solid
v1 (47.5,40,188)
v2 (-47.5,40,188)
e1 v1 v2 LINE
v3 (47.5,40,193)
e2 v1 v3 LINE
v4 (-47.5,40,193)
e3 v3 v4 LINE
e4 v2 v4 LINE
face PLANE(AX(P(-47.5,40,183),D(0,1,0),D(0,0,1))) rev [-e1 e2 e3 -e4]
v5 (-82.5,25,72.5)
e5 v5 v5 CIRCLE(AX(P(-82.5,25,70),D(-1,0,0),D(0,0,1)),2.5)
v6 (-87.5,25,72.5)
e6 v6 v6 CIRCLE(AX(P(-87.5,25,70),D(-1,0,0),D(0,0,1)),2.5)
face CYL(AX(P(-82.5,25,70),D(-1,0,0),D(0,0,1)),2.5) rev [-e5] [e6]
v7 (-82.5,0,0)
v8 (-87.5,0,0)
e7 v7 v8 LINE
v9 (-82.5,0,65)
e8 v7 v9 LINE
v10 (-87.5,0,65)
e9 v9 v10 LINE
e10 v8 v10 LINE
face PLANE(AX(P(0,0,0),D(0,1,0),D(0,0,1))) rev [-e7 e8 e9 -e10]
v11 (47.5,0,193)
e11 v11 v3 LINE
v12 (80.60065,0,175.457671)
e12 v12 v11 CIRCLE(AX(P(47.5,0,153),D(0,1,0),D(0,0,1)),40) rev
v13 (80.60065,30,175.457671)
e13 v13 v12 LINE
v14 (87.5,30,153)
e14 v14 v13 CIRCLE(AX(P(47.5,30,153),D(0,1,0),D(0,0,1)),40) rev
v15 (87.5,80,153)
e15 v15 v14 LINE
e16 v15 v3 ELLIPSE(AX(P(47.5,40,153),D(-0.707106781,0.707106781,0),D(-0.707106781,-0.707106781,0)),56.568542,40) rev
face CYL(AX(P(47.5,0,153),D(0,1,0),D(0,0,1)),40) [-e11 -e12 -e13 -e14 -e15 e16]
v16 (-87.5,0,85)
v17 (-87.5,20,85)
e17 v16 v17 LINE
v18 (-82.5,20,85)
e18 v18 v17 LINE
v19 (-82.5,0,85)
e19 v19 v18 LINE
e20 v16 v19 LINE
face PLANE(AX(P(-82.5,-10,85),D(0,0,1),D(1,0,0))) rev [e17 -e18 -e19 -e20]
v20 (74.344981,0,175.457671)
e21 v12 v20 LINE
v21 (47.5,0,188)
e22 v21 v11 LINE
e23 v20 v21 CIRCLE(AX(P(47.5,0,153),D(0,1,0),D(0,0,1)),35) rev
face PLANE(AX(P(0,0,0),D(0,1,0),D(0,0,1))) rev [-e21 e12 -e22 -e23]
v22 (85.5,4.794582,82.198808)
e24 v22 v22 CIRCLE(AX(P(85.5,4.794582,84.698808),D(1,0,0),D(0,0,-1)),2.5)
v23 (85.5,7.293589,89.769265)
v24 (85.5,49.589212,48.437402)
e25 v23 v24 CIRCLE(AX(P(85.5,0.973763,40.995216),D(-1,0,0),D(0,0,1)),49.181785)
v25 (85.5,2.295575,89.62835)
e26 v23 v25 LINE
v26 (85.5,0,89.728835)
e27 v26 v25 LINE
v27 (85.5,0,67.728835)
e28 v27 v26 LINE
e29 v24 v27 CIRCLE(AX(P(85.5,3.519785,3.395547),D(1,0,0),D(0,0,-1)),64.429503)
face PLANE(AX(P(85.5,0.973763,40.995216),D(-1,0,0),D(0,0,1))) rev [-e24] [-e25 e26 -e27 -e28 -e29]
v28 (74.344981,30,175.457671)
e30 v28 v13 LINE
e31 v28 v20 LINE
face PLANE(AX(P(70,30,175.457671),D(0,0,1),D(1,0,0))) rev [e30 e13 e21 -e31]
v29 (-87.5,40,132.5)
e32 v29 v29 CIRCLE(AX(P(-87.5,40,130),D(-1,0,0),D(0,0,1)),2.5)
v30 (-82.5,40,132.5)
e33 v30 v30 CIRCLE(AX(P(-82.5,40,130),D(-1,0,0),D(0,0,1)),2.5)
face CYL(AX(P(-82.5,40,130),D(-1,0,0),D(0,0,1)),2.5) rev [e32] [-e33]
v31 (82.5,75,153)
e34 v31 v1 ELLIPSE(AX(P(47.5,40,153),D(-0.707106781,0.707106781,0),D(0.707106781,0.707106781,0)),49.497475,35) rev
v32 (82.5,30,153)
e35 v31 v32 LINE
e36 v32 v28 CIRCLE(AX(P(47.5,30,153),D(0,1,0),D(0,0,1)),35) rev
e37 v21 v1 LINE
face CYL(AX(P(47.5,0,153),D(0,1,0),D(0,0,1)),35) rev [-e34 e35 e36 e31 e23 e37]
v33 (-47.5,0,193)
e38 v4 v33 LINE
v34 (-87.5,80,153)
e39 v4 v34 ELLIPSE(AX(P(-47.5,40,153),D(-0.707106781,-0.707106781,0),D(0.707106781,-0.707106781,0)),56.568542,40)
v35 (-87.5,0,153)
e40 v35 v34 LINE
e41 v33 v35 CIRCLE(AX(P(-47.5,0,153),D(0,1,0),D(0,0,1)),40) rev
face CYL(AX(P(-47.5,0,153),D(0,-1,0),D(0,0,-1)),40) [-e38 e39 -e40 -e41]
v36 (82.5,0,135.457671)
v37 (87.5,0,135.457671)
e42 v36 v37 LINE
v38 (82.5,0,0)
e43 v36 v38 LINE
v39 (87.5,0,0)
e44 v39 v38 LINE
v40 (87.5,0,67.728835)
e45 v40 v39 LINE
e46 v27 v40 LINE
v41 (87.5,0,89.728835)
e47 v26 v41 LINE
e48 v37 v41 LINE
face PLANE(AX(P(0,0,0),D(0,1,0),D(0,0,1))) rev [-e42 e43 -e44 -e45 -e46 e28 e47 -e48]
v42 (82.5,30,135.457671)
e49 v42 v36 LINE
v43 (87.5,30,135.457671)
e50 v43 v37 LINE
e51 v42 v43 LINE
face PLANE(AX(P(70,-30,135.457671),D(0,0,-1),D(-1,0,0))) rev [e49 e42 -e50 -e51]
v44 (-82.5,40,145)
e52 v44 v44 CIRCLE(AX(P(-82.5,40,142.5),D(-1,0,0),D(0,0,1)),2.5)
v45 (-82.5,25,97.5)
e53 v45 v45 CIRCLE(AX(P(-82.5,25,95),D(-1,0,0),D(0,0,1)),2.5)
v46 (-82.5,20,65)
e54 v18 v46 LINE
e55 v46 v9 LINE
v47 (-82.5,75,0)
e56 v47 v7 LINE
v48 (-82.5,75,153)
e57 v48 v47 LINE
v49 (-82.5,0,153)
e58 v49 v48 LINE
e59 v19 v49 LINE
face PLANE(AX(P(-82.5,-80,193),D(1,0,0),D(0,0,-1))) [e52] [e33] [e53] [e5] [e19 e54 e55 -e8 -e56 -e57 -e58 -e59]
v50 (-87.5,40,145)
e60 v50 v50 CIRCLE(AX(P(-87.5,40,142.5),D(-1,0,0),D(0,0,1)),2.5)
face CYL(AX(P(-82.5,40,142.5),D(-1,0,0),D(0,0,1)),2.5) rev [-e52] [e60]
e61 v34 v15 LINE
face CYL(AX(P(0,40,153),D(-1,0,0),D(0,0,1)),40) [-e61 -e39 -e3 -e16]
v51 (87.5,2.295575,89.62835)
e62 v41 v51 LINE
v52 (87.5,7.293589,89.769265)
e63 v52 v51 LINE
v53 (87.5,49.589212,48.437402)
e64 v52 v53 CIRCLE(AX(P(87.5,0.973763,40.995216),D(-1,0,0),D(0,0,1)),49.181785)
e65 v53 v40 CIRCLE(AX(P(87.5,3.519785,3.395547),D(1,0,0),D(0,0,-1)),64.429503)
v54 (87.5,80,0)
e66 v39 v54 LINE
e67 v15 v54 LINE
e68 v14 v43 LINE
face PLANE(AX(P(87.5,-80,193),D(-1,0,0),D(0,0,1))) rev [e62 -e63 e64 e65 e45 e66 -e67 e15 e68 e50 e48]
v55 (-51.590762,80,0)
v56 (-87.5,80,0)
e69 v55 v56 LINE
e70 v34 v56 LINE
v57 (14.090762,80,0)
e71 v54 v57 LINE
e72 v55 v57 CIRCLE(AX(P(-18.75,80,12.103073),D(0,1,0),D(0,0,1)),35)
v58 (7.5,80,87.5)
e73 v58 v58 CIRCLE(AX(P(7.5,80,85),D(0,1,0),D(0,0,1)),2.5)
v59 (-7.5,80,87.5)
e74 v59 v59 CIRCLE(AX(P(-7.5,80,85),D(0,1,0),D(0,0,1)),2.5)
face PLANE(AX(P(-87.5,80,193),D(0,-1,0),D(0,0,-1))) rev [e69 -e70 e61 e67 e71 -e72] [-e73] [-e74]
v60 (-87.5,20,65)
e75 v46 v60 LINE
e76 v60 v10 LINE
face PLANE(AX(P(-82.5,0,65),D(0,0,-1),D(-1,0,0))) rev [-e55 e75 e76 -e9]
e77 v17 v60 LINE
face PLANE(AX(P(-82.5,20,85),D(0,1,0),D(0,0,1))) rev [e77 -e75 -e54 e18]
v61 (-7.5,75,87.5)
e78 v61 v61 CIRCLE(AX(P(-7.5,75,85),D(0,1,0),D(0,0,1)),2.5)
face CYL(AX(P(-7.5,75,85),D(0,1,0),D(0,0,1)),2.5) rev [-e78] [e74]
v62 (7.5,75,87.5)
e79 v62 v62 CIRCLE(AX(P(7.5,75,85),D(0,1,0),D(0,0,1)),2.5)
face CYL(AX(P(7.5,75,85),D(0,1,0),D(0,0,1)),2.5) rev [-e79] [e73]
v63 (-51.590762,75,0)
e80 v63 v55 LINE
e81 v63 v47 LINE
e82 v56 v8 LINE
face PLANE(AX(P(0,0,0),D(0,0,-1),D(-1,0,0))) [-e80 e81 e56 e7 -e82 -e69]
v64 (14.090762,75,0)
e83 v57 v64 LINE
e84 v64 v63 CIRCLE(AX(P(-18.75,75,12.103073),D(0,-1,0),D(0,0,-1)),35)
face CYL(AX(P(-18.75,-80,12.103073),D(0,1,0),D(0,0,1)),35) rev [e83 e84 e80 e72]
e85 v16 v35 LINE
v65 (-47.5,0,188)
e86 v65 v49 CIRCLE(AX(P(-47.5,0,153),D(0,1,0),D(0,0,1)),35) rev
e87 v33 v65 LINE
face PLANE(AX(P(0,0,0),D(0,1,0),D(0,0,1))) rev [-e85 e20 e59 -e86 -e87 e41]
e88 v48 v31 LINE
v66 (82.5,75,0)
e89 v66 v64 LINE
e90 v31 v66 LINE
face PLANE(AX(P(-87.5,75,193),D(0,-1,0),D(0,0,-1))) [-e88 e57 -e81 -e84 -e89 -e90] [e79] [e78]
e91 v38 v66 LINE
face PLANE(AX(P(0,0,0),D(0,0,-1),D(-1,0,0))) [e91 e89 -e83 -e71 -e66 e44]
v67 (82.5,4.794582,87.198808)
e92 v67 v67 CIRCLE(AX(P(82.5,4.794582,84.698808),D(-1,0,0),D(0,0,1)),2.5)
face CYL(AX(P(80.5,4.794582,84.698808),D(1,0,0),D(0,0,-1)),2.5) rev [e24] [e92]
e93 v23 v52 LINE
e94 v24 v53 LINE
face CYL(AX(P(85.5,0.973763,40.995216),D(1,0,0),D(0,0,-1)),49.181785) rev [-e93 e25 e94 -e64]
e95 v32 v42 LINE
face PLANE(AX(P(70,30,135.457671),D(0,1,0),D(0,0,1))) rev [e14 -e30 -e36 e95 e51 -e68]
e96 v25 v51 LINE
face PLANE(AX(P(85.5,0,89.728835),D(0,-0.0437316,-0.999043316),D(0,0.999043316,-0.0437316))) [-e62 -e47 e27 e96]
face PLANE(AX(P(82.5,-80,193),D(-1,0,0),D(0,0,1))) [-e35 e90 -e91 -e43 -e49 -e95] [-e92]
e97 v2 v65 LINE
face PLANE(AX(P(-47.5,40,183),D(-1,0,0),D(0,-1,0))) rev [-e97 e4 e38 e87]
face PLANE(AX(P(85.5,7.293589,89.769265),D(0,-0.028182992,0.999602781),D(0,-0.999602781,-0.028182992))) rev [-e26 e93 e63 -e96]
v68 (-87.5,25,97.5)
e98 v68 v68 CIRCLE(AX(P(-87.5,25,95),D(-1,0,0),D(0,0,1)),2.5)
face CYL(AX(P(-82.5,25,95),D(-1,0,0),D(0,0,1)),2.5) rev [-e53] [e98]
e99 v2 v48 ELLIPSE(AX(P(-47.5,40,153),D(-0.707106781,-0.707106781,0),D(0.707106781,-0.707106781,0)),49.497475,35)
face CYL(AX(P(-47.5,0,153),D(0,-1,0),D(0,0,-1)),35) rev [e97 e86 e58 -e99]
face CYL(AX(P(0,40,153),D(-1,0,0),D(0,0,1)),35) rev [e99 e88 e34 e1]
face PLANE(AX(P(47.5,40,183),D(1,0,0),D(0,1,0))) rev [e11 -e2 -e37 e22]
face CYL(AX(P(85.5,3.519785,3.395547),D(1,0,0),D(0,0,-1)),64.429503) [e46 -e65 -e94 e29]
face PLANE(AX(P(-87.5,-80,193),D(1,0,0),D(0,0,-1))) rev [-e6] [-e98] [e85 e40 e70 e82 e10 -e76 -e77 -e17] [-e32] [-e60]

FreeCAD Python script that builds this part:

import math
import FreeCAD as App
import Part
import Sketcher
from FreeCAD import Vector


def edges_at(feature, points):
    """Names of the edges that pass closest to the given points."""
    edges = feature.Shape.Edges
    near = lambda p: min(range(len(edges)), key=lambda i: edges[i].distToShape(Part.Vertex(*p))[0])
    return sorted({f"Edge{near(p) + 1}" for p in points})


def faces_at(feature, points):
    """Names of the faces that lie closest to the given points."""
    faces = feature.Shape.Faces
    near = lambda p: min(range(len(faces)), key=lambda i: faces[i].distToShape(Part.Vertex(*p))[0])
    return sorted({f"Face{near(p) + 1}" for p in points})

doc = App.newDocument("Part")
body = doc.addObject("PartDesign::Body", "Body")

# Sketch on XY plane
sketch1 = body.newObject("Sketcher::SketchObject", "Sketch")
sketch1.AttachmentSupport = (doc.getObject("XY_Plane"), [""])
sketch1.MapMode = "FlatFace"
sketch1.addGeometry([
    Part.LineSegment(Vector(-87.5, 80, 0), Vector(-87.5, -80, 0)),
    Part.LineSegment(Vector(-87.5, -80, 0), Vector(87.5, -80, 0)),
    Part.LineSegment(Vector(87.5, -80, 0), Vector(87.5, 80, 0)),
    Part.LineSegment(Vector(87.5, 80, 0), Vector(-87.5, 80, 0)),
], False)
sketch1.addConstraint([
    Sketcher.Constraint("Coincident", 0, 2, 1, 1),
    Sketcher.Constraint("Coincident", 1, 2, 2, 1),
    Sketcher.Constraint("Coincident", 2, 2, 3, 1),
    Sketcher.Constraint("Coincident", 3, 2, 0, 1),
    Sketcher.Constraint("Vertical", 0),
    Sketcher.Constraint("Horizontal", 1),
    Sketcher.Constraint("Vertical", 2),
    Sketcher.Constraint("Horizontal", 3),
    Sketcher.Constraint("Symmetric", 0, 2, 2, 2, -1, 1),
    Sketcher.Constraint("DistanceX", 1, 1, 1, 2, 175.0),
    Sketcher.Constraint("DistanceY", 0, 2, 0, 1, 160.0),
])
pad1 = body.newObject("PartDesign::Pad", "Pad")
pad1.Profile = sketch1
pad1.Length = 193
doc.recompute()

fillet = body.newObject("PartDesign::Fillet", "Fillet")
fillet.Base = (pad1, edges_at(pad1, [
    (-87.5, 0, 193),
    (0, -80, 193),
    (87.5, 0, 193),
    (0, 80, 193),
]))
fillet.Radius = 40
doc.recompute()

thickness = body.newObject("PartDesign::Thickness", "Thickness")
thickness.Base = (fillet, faces_at(fillet, [(0, 0, 0)]))
thickness.Value = 5
thickness.Reversed = True
thickness.Join = "Arc"

# Sketch on XY plane
sketch2 = body.newObject("Sketcher::SketchObject", "Sketch001")
sketch2.AttachmentSupport = (doc.getObject("XY_Plane"), [""])
sketch2.MapMode = "FlatFace"
sketch2.AttachmentOffset = App.Placement(Vector(0, 0, 193), App.Rotation())
sketch2.addGeometry([
    Part.LineSegment(Vector(-47.5, 40, 0), Vector(-47.5, -40, 0)),
    Part.LineSegment(Vector(-47.5, -40, 0), Vector(47.5, -40, 0)),
    Part.LineSegment(Vector(47.5, -40, 0), Vector(47.5, 40, 0)),
    Part.LineSegment(Vector(47.5, 40, 0), Vector(-47.5, 40, 0)),
], False)
sketch2.addConstraint([
    Sketcher.Constraint("Coincident", 0, 2, 1, 1),
    Sketcher.Constraint("Coincident", 1, 2, 2, 1),
    Sketcher.Constraint("Coincident", 2, 2, 3, 1),
    Sketcher.Constraint("Coincident", 3, 2, 0, 1),
    Sketcher.Constraint("Vertical", 0),
    Sketcher.Constraint("Horizontal", 1),
    Sketcher.Constraint("Vertical", 2),
    Sketcher.Constraint("Horizontal", 3),
    Sketcher.Constraint("Symmetric", 0, 2, 2, 2, -1, 1),
    Sketcher.Constraint("DistanceX", 1, 1, 1, 2, 95.0),
    Sketcher.Constraint("DistanceY", 0, 2, 0, 1, 80.0),
])
pocket1 = body.newObject("PartDesign::Pocket", "Pocket")
pocket1.Profile = sketch2
pocket1.Length = 10

# Sketch on XZ plane
sketch3 = body.newObject("Sketcher::SketchObject", "Sketch002")
sketch3.AttachmentSupport = (doc.getObject("XZ_Plane"), [""])
sketch3.MapMode = "FlatFace"
sketch3.AttachmentOffset = App.Placement(Vector(0, 0, -80), App.Rotation())
sketch3.addGeometry(Part.Circle(Vector(-18.75, 12.103073, 0), Vector(0, 0, 1), 35), False)
sketch3.addConstraint([
    Sketcher.Constraint("Diameter", 0, 70.0),
    Sketcher.Constraint("DistanceX", 0, 3, -1, 1, 18.75),
    Sketcher.Constraint("DistanceY", -1, 1, 0, 3, 12.103073),
])
pocket2 = body.newObject("PartDesign::Pocket", "Pocket001")
pocket2.Profile = sketch3
pocket2.Length = 160
pocket2.Reversed = True

# Sketch on YZ plane
sketch4 = body.newObject("Sketcher::SketchObject", "Sketch003")
sketch4.AttachmentSupport = (doc.getObject("YZ_Plane"), [""])
sketch4.MapMode = "FlatFace"
sketch4.AttachmentOffset = App.Placement(Vector(0, 0, 90), App.Rotation())
sketch4.addGeometry([
    Part.LineSegment(Vector(30, 175.457671, 0), Vector(-30, 175.457671, 0)),
    Part.LineSegment(Vector(-30, 175.457671, 0), Vector(-30, 135.457671, 0)),
    Part.LineSegment(Vector(-30, 135.457671, 0), Vector(30, 135.457671, 0)),
    Part.LineSegment(Vector(30, 135.457671, 0), Vector(30, 175.457671, 0)),
], False)
sketch4.addConstraint([
    Sketcher.Constraint("Coincident", 0, 2, 1, 1),
    Sketcher.Constraint("Coincident", 1, 2, 2, 1),
    Sketcher.Constraint("Coincident", 2, 2, 3, 1),
    Sketcher.Constraint("Coincident", 3, 2, 0, 1),
    Sketcher.Constraint("Horizontal", 0),
    Sketcher.Constraint("Vertical", 1),
    Sketcher.Constraint("Horizontal", 2),
    Sketcher.Constraint("Vertical", 3),
    Sketcher.Constraint("DistanceX", 0, 2, 0, 1, 60.0),
    Sketcher.Constraint("DistanceY", 1, 2, 1, 1, 40.0),
    Sketcher.Constraint("DistanceX", 0, 2, -1, 1, 30.0),
    Sketcher.Constraint("DistanceY", -1, 1, 0, 2, 175.457671),
])
pocket3 = body.newObject("PartDesign::Pocket", "Pocket002")
pocket3.Profile = sketch4
pocket3.Length = 20

# Sketch on XZ plane
sketch5 = body.newObject("Sketcher::SketchObject", "Sketch004")
sketch5.AttachmentSupport = (doc.getObject("XZ_Plane"), [""])
sketch5.MapMode = "FlatFace"
sketch5.addGeometry([
    Part.LineSegment(Vector(-165, 200, 0), Vector(110, 200, 0)),
    Part.LineSegment(Vector(110, 200, 0), Vector(110, 0, 0)),
    Part.LineSegment(Vector(110, 0, 0), Vector(-165, 0, 0)),
    Part.LineSegment(Vector(-165, 0, 0), Vector(-165, 200, 0)),
], False)
sketch5.addConstraint([
    Sketcher.Constraint("Coincident", 0, 2, 1, 1),
    Sketcher.Constraint("Coincident", 1, 2, 2, 1),
    Sketcher.Constraint("Coincident", 2, 2, 3, 1),
    Sketcher.Constraint("Coincident", 3, 2, 0, 1),
    Sketcher.Constraint("Horizontal", 0),
    Sketcher.Constraint("Vertical", 1),
    Sketcher.Constraint("Horizontal", 2),
    Sketcher.Constraint("Vertical", 3),
    Sketcher.Constraint("PointOnObject", 1, 2, -1),
    Sketcher.Constraint("DistanceX", 0, 1, 0, 2, 275.0),
    Sketcher.Constraint("DistanceY", 1, 2, 1, 1, 200.0),
    Sketcher.Constraint("DistanceX", -1, 1, 0, 2, 110.0),
])
pocket4 = body.newObject("PartDesign::Pocket", "Pocket003")
pocket4.Profile = sketch5
pocket4.Length = 80
pocket4.Reversed = True

# Sketch on XZ plane
sketch6 = body.newObject("Sketcher::SketchObject", "Sketch005")
sketch6.AttachmentSupport = (doc.getObject("XZ_Plane"), [""])
sketch6.MapMode = "FlatFace"
sketch6.AttachmentOffset = App.Placement(Vector(0, 0, -80), App.Rotation())
sketch6.addGeometry([
    Part.Circle(Vector(7.5, 85, 0), Vector(0, 0, 1), 2.5),
    Part.Circle(Vector(-7.5, 85, 0), Vector(0, 0, 1), 2.5),
], False)
sketch6.addConstraint([
    Sketcher.Constraint("Equal", 0, 1),
    Sketcher.Constraint("Symmetric", 0, 3, 1, 3, -2),
    Sketcher.Constraint("Diameter", 0, 5.0),
    Sketcher.Constraint("DistanceY", -1, 1, 0, 3, 85.0),
    Sketcher.Constraint("DistanceX", 1, 3, 0, 3, 15.0),
])
pocket5 = body.newObject("PartDesign::Pocket", "Pocket004")
pocket5.Profile = sketch6
pocket5.Length = 5
pocket5.Reversed = True

# Sketch on YZ plane
sketch7 = body.newObject("Sketcher::SketchObject", "Sketch006")
sketch7.AttachmentSupport = (doc.getObject("YZ_Plane"), [""])
sketch7.MapMode = "FlatFace"
sketch7.AttachmentOffset = App.Placement(Vector(0, 0, -87.5), App.Rotation())
sketch7.addGeometry([
    Part.Circle(Vector(40, 130, 0), Vector(0, 0, 1), 2.5),  # 0
    Part.Circle(Vector(40, 142.5, 0), Vector(0, 0, 1), 2.5),  # 1
    Part.Circle(Vector(25, 70, 0), Vector(0, 0, 1), 2.5),  # 2
    Part.Circle(Vector(25, 95, 0), Vector(0, 0, 1), 2.5),  # 3
    Part.LineSegment(Vector(-10, 65, 0), Vector(-10, 85, 0)),  # 4
    Part.LineSegment(Vector(-10, 85, 0), Vector(20, 85, 0)),  # 5
    Part.LineSegment(Vector(20, 85, 0), Vector(20, 65, 0)),  # 6
    Part.LineSegment(Vector(20, 65, 0), Vector(-10, 65, 0)),  # 7
], False)
sketch7.addConstraint([
    Sketcher.Constraint("Coincident", 4, 2, 5, 1),
    Sketcher.Constraint("Coincident", 5, 2, 6, 1),
    Sketcher.Constraint("Coincident", 6, 2, 7, 1),
    Sketcher.Constraint("Coincident", 7, 2, 4, 1),
    Sketcher.Constraint("Vertical", 4),
    Sketcher.Constraint("Horizontal", 5),
    Sketcher.Constraint("Vertical", 6),
    Sketcher.Constraint("Horizontal", 7),
    Sketcher.Constraint("Equal", 0, 1),
    Sketcher.Constraint("Equal", 1, 2),
    Sketcher.Constraint("Equal", 2, 3),
    Sketcher.Constraint("Vertical", 0, 3, 1, 3),
    Sketcher.Constraint("Vertical", 2, 3, 3, 3),
    Sketcher.Constraint("Diameter", 0, 5.0),
    Sketcher.Constraint("DistanceX", 5, 1, 5, 2, 30.0),
    Sketcher.Constraint("DistanceY", 4, 1, 4, 2, 20.0),
    Sketcher.Constraint("DistanceX", -1, 1, 0, 3, 40.0),
    Sketcher.Constraint("DistanceY", -1, 1, 0, 3, 130.0),
    Sketcher.Constraint("DistanceX", -1, 1, 2, 3, 25.0),
    Sketcher.Constraint("DistanceY", -1, 1, 2, 3, 70.0),
    Sketcher.Constraint("DistanceY", -1, 1, 3, 3, 95.0),
    Sketcher.Constraint("DistanceX", 4, 2, -1, 1, 10.0),
    Sketcher.Constraint("DistanceY", -1, 1, 4, 2, 85.0),
    Sketcher.Constraint("DistanceY", -1, 1, 1, 3, 142.5),
])
pocket6 = body.newObject("PartDesign::Pocket", "Pocket005")
pocket6.Profile = sketch7
pocket6.Length = 5
pocket6.Reversed = True

# Sketch on YZ plane
sketch8 = body.newObject("Sketcher::SketchObject", "Sketch007")
sketch8.AttachmentSupport = (doc.getObject("YZ_Plane"), [""])
sketch8.MapMode = "FlatFace"
sketch8.AttachmentOffset = App.Placement(Vector(0, 0, 87.5), App.Rotation())
sketch8.addGeometry([
    Part.LineSegment(Vector(0, 89.728835, 0), Vector(0, 67.728835, 0)),  # 0
    Part.ArcOfCircle(Part.Circle(Vector(3.519785, 3.395547, 0), Vector(0, 0, 1), 64.429503), math.radians(44.353833), math.radians(93.131628)),  # 1
    Part.ArcOfCircle(Part.Circle(Vector(0.973763, 40.995216, 0), Vector(0, 0, 1), 49.181785), math.radians(8.703428), math.radians(82.617118)),  # 2
    Part.LineSegment(Vector(7.293589, 89.769265, 0), Vector(2.295575, 89.62835, 0)),  # 3
    Part.LineSegment(Vector(2.295575, 89.62835, 0), Vector(0, 89.728835, 0)),  # 4
], False)
sketch8.addConstraint([
    Sketcher.Constraint("Coincident", 0, 2, 1, 2),
    Sketcher.Constraint("Coincident", 1, 1, 2, 1),
    Sketcher.Constraint("Coincident", 2, 2, 3, 1),
    Sketcher.Constraint("Coincident", 3, 2, 4, 1),
    Sketcher.Constraint("Coincident", 4, 2, 0, 1),
    Sketcher.Constraint("Vertical", 0),
    Sketcher.Constraint("PointOnObject", 0, 2, -2),
    Sketcher.Constraint("DistanceY", 0, 2, 0, 1, 22.0),
    Sketcher.Constraint("Distance", 3, 5.0),
    Sketcher.Constraint("Radius", 1, 64.429503),
    Sketcher.Constraint("Radius", 2, 49.181785),
    Sketcher.Constraint("DistanceY", -1, 1, 1, 1, 48.437402),
    Sketcher.Constraint("DistanceX", -1, 1, 2, 2, 7.293589),
    Sketcher.Constraint("DistanceY", -1, 1, 3, 2, 89.62835),
    Sketcher.Constraint("DistanceX", 2, 3, 1, 3, 2.546022),
    Sketcher.Constraint("DistanceY", 1, 3, 2, 3, 37.599669),
    Sketcher.Constraint("DistanceY", 2, 3, 0, 2, 26.733619),
])
pocket7 = body.newObject("PartDesign::Pocket", "Pocket006")
pocket7.Profile = sketch8
pocket7.Length = 2

# Sketch on YZ plane
sketch9 = body.newObject("Sketcher::SketchObject", "Sketch008")
sketch9.AttachmentSupport = (doc.getObject("YZ_Plane"), [""])
sketch9.MapMode = "FlatFace"
sketch9.AttachmentOffset = App.Placement(Vector(0, 0, 85.5), App.Rotation())
sketch9.addGeometry(Part.Circle(Vector(4.794582, 84.698808, 0), Vector(0, 0, 1), 2.5), False)
sketch9.addConstraint([
    Sketcher.Constraint("Diameter", 0, 5.0),
    Sketcher.Constraint("DistanceX", -1, 1, 0, 3, 4.794582),
    Sketcher.Constraint("DistanceY", -1, 1, 0, 3, 84.698808),
])
pocket8 = body.newObject("PartDesign::Pocket", "Pocket007")
pocket8.Profile = sketch9
pocket8.Length = 5

doc.recompute()
